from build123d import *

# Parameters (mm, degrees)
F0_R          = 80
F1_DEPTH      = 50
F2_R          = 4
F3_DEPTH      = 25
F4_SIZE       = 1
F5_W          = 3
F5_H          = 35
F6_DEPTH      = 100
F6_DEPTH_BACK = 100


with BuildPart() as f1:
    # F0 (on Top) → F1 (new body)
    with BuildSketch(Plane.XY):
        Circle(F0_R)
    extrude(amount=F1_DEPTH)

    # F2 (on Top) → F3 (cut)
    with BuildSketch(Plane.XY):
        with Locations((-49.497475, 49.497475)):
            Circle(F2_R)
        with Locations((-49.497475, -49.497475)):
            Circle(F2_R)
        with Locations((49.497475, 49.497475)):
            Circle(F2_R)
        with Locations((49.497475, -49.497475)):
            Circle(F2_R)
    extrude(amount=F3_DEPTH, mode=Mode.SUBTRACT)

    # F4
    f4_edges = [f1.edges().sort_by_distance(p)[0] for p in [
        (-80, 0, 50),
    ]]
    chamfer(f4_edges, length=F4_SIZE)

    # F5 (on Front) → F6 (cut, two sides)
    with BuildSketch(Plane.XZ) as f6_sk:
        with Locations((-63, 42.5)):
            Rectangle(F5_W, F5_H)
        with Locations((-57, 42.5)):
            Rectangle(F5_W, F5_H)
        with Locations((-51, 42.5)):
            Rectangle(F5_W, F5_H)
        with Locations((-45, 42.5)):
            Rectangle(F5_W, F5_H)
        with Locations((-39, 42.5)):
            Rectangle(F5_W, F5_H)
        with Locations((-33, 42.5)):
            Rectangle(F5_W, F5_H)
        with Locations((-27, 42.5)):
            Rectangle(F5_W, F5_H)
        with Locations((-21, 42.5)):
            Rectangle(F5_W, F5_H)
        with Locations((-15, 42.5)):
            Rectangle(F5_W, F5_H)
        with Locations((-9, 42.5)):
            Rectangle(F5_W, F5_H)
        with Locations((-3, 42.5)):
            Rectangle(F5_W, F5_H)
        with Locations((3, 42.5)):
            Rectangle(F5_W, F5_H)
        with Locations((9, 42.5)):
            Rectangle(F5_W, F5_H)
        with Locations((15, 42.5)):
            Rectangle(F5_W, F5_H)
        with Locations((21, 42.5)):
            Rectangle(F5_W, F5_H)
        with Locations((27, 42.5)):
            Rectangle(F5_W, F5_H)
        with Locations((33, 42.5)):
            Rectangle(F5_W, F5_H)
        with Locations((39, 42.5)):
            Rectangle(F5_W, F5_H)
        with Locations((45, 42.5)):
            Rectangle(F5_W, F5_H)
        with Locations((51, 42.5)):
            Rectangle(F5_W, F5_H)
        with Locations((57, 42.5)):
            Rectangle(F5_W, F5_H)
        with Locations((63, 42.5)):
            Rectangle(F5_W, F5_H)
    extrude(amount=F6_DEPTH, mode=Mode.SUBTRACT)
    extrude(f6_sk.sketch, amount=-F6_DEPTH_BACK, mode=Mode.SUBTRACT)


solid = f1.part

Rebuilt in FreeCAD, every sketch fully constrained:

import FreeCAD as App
import Part
import Sketcher
from FreeCAD import Vector


def edges_at(feature, points):
    """Names of the edges that pass closest to the given points."""
    edges = feature.Shape.Edges
    near = lambda p: min(range(len(edges)), key=lambda i: edges[i].distToShape(Part.Vertex(*p))[0])
    return sorted({f"Edge{near(p) + 1}" for p in points})

doc = App.newDocument("Part")
body = doc.addObject("PartDesign::Body", "Body")

# Sketch on XY plane
sketch1 = body.newObject("Sketcher::SketchObject", "Sketch")
sketch1.AttachmentSupport = (doc.getObject("XY_Plane"), [""])
sketch1.MapMode = "FlatFace"
sketch1.addGeometry(Part.Circle(Vector(0, 0, 0), Vector(0, 0, 1), 80), False)
sketch1.addConstraint(Sketcher.Constraint("Coincident", 0, 3, -1, 1))
sketch1.addConstraint(Sketcher.Constraint("Diameter", 0, 160.0))
pad1 = body.newObject("PartDesign::Pad", "Pad")
pad1.Profile = sketch1
pad1.Length = 50

# Sketch on XY plane
sketch2 = body.newObject("Sketcher::SketchObject", "Sketch001")
sketch2.AttachmentSupport = (doc.getObject("XY_Plane"), [""])
sketch2.MapMode = "FlatFace"
sketch2.addGeometry(Part.Circle(Vector(-49.5, 49.5, 0), Vector(0, 0, 1), 4), False)
sketch2.addGeometry(Part.Circle(Vector(-49.5, -49.5, 0), Vector(0, 0, 1), 4), False)
sketch2.addGeometry(Part.Circle(Vector(49.5, 49.5, 0), Vector(0, 0, 1), 4), False)
sketch2.addGeometry(Part.Circle(Vector(49.5, -49.5, 0), Vector(0, 0, 1), 4), False)
sketch2.addConstraint(Sketcher.Constraint("Equal", 0, 1))
sketch2.addConstraint(Sketcher.Constraint("Equal", 1, 2))
sketch2.addConstraint(Sketcher.Constraint("Equal", 2, 3))
sketch2.addConstraint(Sketcher.Constraint("Symmetric", 1, 3, 2, 3, -1, 1))
sketch2.addConstraint(Sketcher.Constraint("Symmetric", 0, 3, 3, 3, -1, 1))
sketch2.addConstraint(Sketcher.Constraint("Symmetric", 0, 3, 2, 3, -2))
sketch2.addConstraint(Sketcher.Constraint("Diameter", 0, 8.0))
sketch2.addConstraint(Sketcher.Constraint("DistanceY", 1, 3, 0, 3, 98.99495))
sketch2.addConstraint(Sketcher.Constraint("DistanceX", 0, 3, 2, 3, 98.99495))
pocket1 = body.newObject("PartDesign::Pocket", "Pocket")
pocket1.Profile = sketch2
pocket1.Length = 25
pocket1.Reversed = True
doc.recompute()

chamfer = body.newObject("PartDesign::Chamfer", "Chamfer")
chamfer.Base = (pocket1, edges_at(pocket1, [(-80, 0, 50)]))
chamfer.Size = 1

# Sketch on XZ plane
sketch3 = body.newObject("Sketcher::SketchObject", "Sketch002")
sketch3.AttachmentSupport = (doc.getObject("XZ_Plane"), [""])
sketch3.MapMode = "FlatFace"
sketch3.addGeometry(Part.LineSegment(Vector(-64.5, 60, 0), Vector(-64.5, 25, 0)), False)
sketch3.addGeometry(Part.LineSegment(Vector(-64.5, 25, 0), Vector(-61.5, 25, 0)), False)
sketch3.addGeometry(Part.LineSegment(Vector(-61.5, 25, 0), Vector(-61.5, 60, 0)), False)
sketch3.addGeometry(Part.LineSegment(Vector(-61.5, 60, 0), Vector(-64.5, 60, 0)), False)
sketch3.addGeometry(Part.LineSegment(Vector(-58.5, 60, 0), Vector(-58.5, 25, 0)), False)
sketch3.addGeometry(Part.LineSegment(Vector(-58.5, 25, 0), Vector(-55.5, 25, 0)), False)
sketch3.addGeometry(Part.LineSegment(Vector(-55.5, 25, 0), Vector(-55.5, 60, 0)), False)
sketch3.addGeometry(Part.LineSegment(Vector(-55.5, 60, 0), Vector(-58.5, 60, 0)), False)
sketch3.addGeometry(Part.LineSegment(Vector(-52.5, 60, 0), Vector(-52.5, 25, 0)), False)
sketch3.addGeometry(Part.LineSegment(Vector(-52.5, 25, 0), Vector(-49.5, 25, 0)), False)
sketch3.addGeometry(Part.LineSegment(Vector(-49.5, 25, 0), Vector(-49.5, 60, 0)), False)
sketch3.addGeometry(Part.LineSegment(Vector(-49.5, 60, 0), Vector(-52.5, 60, 0)), False)
sketch3.addGeometry(Part.LineSegment(Vector(-46.5, 60, 0), Vector(-46.5, 25, 0)), False)
sketch3.addGeometry(Part.LineSegment(Vector(-46.5, 25, 0), Vector(-43.5, 25, 0)), False)
sketch3.addGeometry(Part.LineSegment(Vector(-43.5, 25, 0), Vector(-43.5, 60, 0)), False)
sketch3.addGeometry(Part.LineSegment(Vector(-43.5, 60, 0), Vector(-46.5, 60, 0)), False)
sketch3.addGeometry(Part.LineSegment(Vector(-40.5, 60, 0), Vector(-40.5, 25, 0)), False)
sketch3.addGeometry(Part.LineSegment(Vector(-40.5, 25, 0), Vector(-37.5, 25, 0)), False)
sketch3.addGeometry(Part.LineSegment(Vector(-37.5, 25, 0), Vector(-37.5, 60, 0)), False)
sketch3.addGeometry(Part.LineSegment(Vector(-37.5, 60, 0), Vector(-40.5, 60, 0)), False)
sketch3.addGeometry(Part.LineSegment(Vector(-34.5, 60, 0), Vector(-34.5, 25, 0)), False)
sketch3.addGeometry(Part.LineSegment(Vector(-34.5, 25, 0), Vector(-31.5, 25, 0)), False)
sketch3.addGeometry(Part.LineSegment(Vector(-31.5, 25, 0), Vector(-31.5, 60, 0)), False)
sketch3.addGeometry(Part.LineSegment(Vector(-31.5, 60, 0), Vector(-34.5, 60, 0)), False)
sketch3.addGeometry(Part.LineSegment(Vector(-28.5, 60, 0), Vector(-28.5, 25, 0)), False)
sketch3.addGeometry(Part.LineSegment(Vector(-28.5, 25, 0), Vector(-25.5, 25, 0)), False)
sketch3.addGeometry(Part.LineSegment(Vector(-25.5, 25, 0), Vector(-25.5, 60, 0)), False)
sketch3.addGeometry(Part.LineSegment(Vector(-25.5, 60, 0), Vector(-28.5, 60, 0)), False)
sketch3.addGeometry(Part.LineSegment(Vector(-22.5, 60, 0), Vector(-22.5, 25, 0)), False)
sketch3.addGeometry(Part.LineSegment(Vector(-22.5, 25, 0), Vector(-19.5, 25, 0)), False)
sketch3.addGeometry(Part.LineSegment(Vector(-19.5, 25, 0), Vector(-19.5, 60, 0)), False)
sketch3.addGeometry(Part.LineSegment(Vector(-19.5, 60, 0), Vector(-22.5, 60, 0)), False)
sketch3.addGeometry(Part.LineSegment(Vector(-16.5, 60, 0), Vector(-16.5, 25, 0)), False)
sketch3.addGeometry(Part.LineSegment(Vector(-16.5, 25, 0), Vector(-13.5, 25, 0)), False)
sketch3.addGeometry(Part.LineSegment(Vector(-13.5, 25, 0), Vector(-13.5, 60, 0)), False)
sketch3.addGeometry(Part.LineSegment(Vector(-13.5, 60, 0), Vector(-16.5, 60, 0)), False)
sketch3.addGeometry(Part.LineSegment(Vector(-10.5, 60, 0), Vector(-10.5, 25, 0)), False)
sketch3.addGeometry(Part.LineSegment(Vector(-10.5, 25, 0), Vector(-7.5, 25, 0)), False)
sketch3.addGeometry(Part.LineSegment(Vector(-7.5, 25, 0), Vector(-7.5, 60, 0)), False)
sketch3.addGeometry(Part.LineSegment(Vector(-7.5, 60, 0), Vector(-10.5, 60, 0)), False)
sketch3.addGeometry(Part.LineSegment(Vector(-4.5, 60, 0), Vector(-4.5, 25, 0)), False)
sketch3.addGeometry(Part.LineSegment(Vector(-4.5, 25, 0), Vector(-1.5, 25, 0)), False)
sketch3.addGeometry(Part.LineSegment(Vector(-1.5, 25, 0), Vector(-1.5, 60, 0)), False)
sketch3.addGeometry(Part.LineSegment(Vector(-1.5, 60, 0), Vector(-4.5, 60, 0)), False)
sketch3.addGeometry(Part.LineSegment(Vector(1.5, 60, 0), Vector(1.5, 25, 0)), False)
sketch3.addGeometry(Part.LineSegment(Vector(1.5, 25, 0), Vector(4.5, 25, 0)), False)
sketch3.addGeometry(Part.LineSegment(Vector(4.5, 25, 0), Vector(4.5, 60, 0)), False)
sketch3.addGeometry(Part.LineSegment(Vector(4.5, 60, 0), Vector(1.5, 60, 0)), False)
sketch3.addGeometry(Part.LineSegment(Vector(7.5, 60, 0), Vector(7.5, 25, 0)), False)
sketch3.addGeometry(Part.LineSegment(Vector(7.5, 25, 0), Vector(10.5, 25, 0)), False)
sketch3.addGeometry(Part.LineSegment(Vector(10.5, 25, 0), Vector(10.5, 60, 0)), False)
sketch3.addGeometry(Part.LineSegment(Vector(10.5, 60, 0), Vector(7.5, 60, 0)), False)
sketch3.addGeometry(Part.LineSegment(Vector(13.5, 60, 0), Vector(13.5, 25, 0)), False)
sketch3.addGeometry(Part.LineSegment(Vector(13.5, 25, 0), Vector(16.5, 25, 0)), False)
sketch3.addGeometry(Part.LineSegment(Vector(16.5, 25, 0), Vector(16.5, 60, 0)), False)
sketch3.addGeometry(Part.LineSegment(Vector(16.5, 60, 0), Vector(13.5, 60, 0)), False)
sketch3.addGeometry(Part.LineSegment(Vector(19.5, 60, 0), Vector(19.5, 25, 0)), False)
sketch3.addGeometry(Part.LineSegment(Vector(19.5, 25, 0), Vector(22.5, 25, 0)), False)
sketch3.addGeometry(Part.LineSegment(Vector(22.5, 25, 0), Vector(22.5, 60, 0)), False)
sketch3.addGeometry(Part.LineSegment(Vector(22.5, 60, 0), Vector(19.5, 60, 0)), False)
sketch3.addGeometry(Part.LineSegment(Vector(25.5, 60, 0), Vector(25.5, 25, 0)), False)
sketch3.addGeometry(Part.LineSegment(Vector(25.5, 25, 0), Vector(28.5, 25, 0)), False)
sketch3.addGeometry(Part.LineSegment(Vector(28.5, 25, 0), Vector(28.5, 60, 0)), False)
sketch3.addGeometry(Part.LineSegment(Vector(28.5, 60, 0), Vector(25.5, 60, 0)), False)
sketch3.addGeometry(Part.LineSegment(Vector(31.5, 60, 0), Vector(31.5, 25, 0)), False)
sketch3.addGeometry(Part.LineSegment(Vector(31.5, 25, 0), Vector(34.5, 25, 0)), False)
sketch3.addGeometry(Part.LineSegment(Vector(34.5, 25, 0), Vector(34.5, 60, 0)), False)
sketch3.addGeometry(Part.LineSegment(Vector(34.5, 60, 0), Vector(31.5, 60, 0)), False)
sketch3.addGeometry(Part.LineSegment(Vector(37.5, 60, 0), Vector(37.5, 25, 0)), False)
sketch3.addGeometry(Part.LineSegment(Vector(37.5, 25, 0), Vector(40.5, 25, 0)), False)
sketch3.addGeometry(Part.LineSegment(Vector(40.5, 25, 0), Vector(40.5, 60, 0)), False)
sketch3.addGeometry(Part.LineSegment(Vector(40.5, 60, 0), Vector(37.5, 60, 0)), False)
sketch3.addGeometry(Part.LineSegment(Vector(43.5, 60, 0), Vector(43.5, 25, 0)), False)
sketch3.addGeometry(Part.LineSegment(Vector(43.5, 25, 0), Vector(46.5, 25, 0)), False)
sketch3.addGeometry(Part.LineSegment(Vector(46.5, 25, 0), Vector(46.5, 60, 0)), False)
sketch3.addGeometry(Part.LineSegment(Vector(46.5, 60, 0), Vector(43.5, 60, 0)), False)
sketch3.addGeometry(Part.LineSegment(Vector(49.5, 60, 0), Vector(49.5, 25, 0)), False)
sketch3.addGeometry(Part.LineSegment(Vector(49.5, 25, 0), Vector(52.5, 25, 0)), False)
sketch3.addGeometry(Part.LineSegment(Vector(52.5, 25, 0), Vector(52.5, 60, 0)), False)
sketch3.addGeometry(Part.LineSegment(Vector(52.5, 60, 0), Vector(49.5, 60, 0)), False)
sketch3.addGeometry(Part.LineSegment(Vector(55.5, 60, 0), Vector(55.5, 25, 0)), False)
sketch3.addGeometry(Part.LineSegment(Vector(55.5, 25, 0), Vector(58.5, 25, 0)), False)
sketch3.addGeometry(Part.LineSegment(Vector(58.5, 25, 0), Vector(58.5, 60, 0)), False)
sketch3.addGeometry(Part.LineSegment(Vector(58.5, 60, 0), Vector(55.5, 60, 0)), False)
sketch3.addGeometry(Part.LineSegment(Vector(61.5, 60, 0), Vector(61.5, 25, 0)), False)
sketch3.addGeometry(Part.LineSegment(Vector(61.5, 25, 0), Vector(64.5, 25, 0)), False)
sketch3.addGeometry(Part.LineSegment(Vector(64.5, 25, 0), Vector(64.5, 60, 0)), False)
sketch3.addGeometry(Part.LineSegment(Vector(64.5, 60, 0), Vector(61.5, 60, 0)), False)
sketch3.addConstraint(Sketcher.Constraint("Coincident", 0, 2, 1, 1))
sketch3.addConstraint(Sketcher.Constraint("Coincident", 1, 2, 2, 1))
sketch3.addConstraint(Sketcher.Constraint("Coincident", 2, 2, 3, 1))
sketch3.addConstraint(Sketcher.Constraint("Coincident", 3, 2, 0, 1))
sketch3.addConstraint(Sketcher.Constraint("Coincident", 4, 2, 5, 1))
sketch3.addConstraint(Sketcher.Constraint("Coincident", 5, 2, 6, 1))
sketch3.addConstraint(Sketcher.Constraint("Coincident", 6, 2, 7, 1))
sketch3.addConstraint(Sketcher.Constraint("Coincident", 7, 2, 4, 1))
sketch3.addConstraint(Sketcher.Constraint("Coincident", 8, 2, 9, 1))
sketch3.addConstraint(Sketcher.Constraint("Coincident", 9, 2, 10, 1))
sketch3.addConstraint(Sketcher.Constraint("Coincident", 10, 2, 11, 1))
sketch3.addConstraint(Sketcher.Constraint("Coincident", 11, 2, 8, 1))
sketch3.addConstraint(Sketcher.Constraint("Coincident", 12, 2, 13, 1))
sketch3.addConstraint(Sketcher.Constraint("Coincident", 13, 2, 14, 1))
sketch3.addConstraint(Sketcher.Constraint("Coincident", 14, 2, 15, 1))
sketch3.addConstraint(Sketcher.Constraint("Coincident", 15, 2, 12, 1))
sketch3.addConstraint(Sketcher.Constraint("Coincident", 16, 2, 17, 1))
sketch3.addConstraint(Sketcher.Constraint("Coincident", 17, 2, 18, 1))
sketch3.addConstraint(Sketcher.Constraint("Coincident", 18, 2, 19, 1))
sketch3.addConstraint(Sketcher.Constraint("Coincident", 19, 2, 16, 1))
sketch3.addConstraint(Sketcher.Constraint("Coincident", 20, 2, 21, 1))
sketch3.addConstraint(Sketcher.Constraint("Coincident", 21, 2, 22, 1))
sketch3.addConstraint(Sketcher.Constraint("Coincident", 22, 2, 23, 1))
sketch3.addConstraint(Sketcher.Constraint("Coincident", 23, 2, 20, 1))
sketch3.addConstraint(Sketcher.Constraint("Coincident", 24, 2, 25, 1))
sketch3.addConstraint(Sketcher.Constraint("Coincident", 25, 2, 26, 1))
sketch3.addConstraint(Sketcher.Constraint("Coincident", 26, 2, 27, 1))
sketch3.addConstraint(Sketcher.Constraint("Coincident", 27, 2, 24, 1))
sketch3.addConstraint(Sketcher.Constraint("Coincident", 28, 2, 29, 1))
sketch3.addConstraint(Sketcher.Constraint("Coincident", 29, 2, 30, 1))
sketch3.addConstraint(Sketcher.Constraint("Coincident", 30, 2, 31, 1))
sketch3.addConstraint(Sketcher.Constraint("Coincident", 31, 2, 28, 1))
sketch3.addConstraint(Sketcher.Constraint("Coincident", 32, 2, 33, 1))
sketch3.addConstraint(Sketcher.Constraint("Coincident", 33, 2, 34, 1))
sketch3.addConstraint(Sketcher.Constraint("Coincident", 34, 2, 35, 1))
sketch3.addConstraint(Sketcher.Constraint("Coincident", 35, 2, 32, 1))
sketch3.addConstraint(Sketcher.Constraint("Coincident", 36, 2, 37, 1))
sketch3.addConstraint(Sketcher.Constraint("Coincident", 37, 2, 38, 1))
sketch3.addConstraint(Sketcher.Constraint("Coincident", 38, 2, 39, 1))
sketch3.addConstraint(Sketcher.Constraint("Coincident", 39, 2, 36, 1))
sketch3.addConstraint(Sketcher.Constraint("Coincident", 40, 2, 41, 1))
sketch3.addConstraint(Sketcher.Constraint("Coincident", 41, 2, 42, 1))
sketch3.addConstraint(Sketcher.Constraint("Coincident", 42, 2, 43, 1))
sketch3.addConstraint(Sketcher.Constraint("Coincident", 43, 2, 40, 1))
sketch3.addConstraint(Sketcher.Constraint("Coincident", 44, 2, 45, 1))
sketch3.addConstraint(Sketcher.Constraint("Coincident", 45, 2, 46, 1))
sketch3.addConstraint(Sketcher.Constraint("Coincident", 46, 2, 47, 1))
sketch3.addConstraint(Sketcher.Constraint("Coincident", 47, 2, 44, 1))
sketch3.addConstraint(Sketcher.Constraint("Coincident", 48, 2, 49, 1))
sketch3.addConstraint(Sketcher.Constraint("Coincident", 49, 2, 50, 1))
sketch3.addConstraint(Sketcher.Constraint("Coincident", 50, 2, 51, 1))
sketch3.addConstraint(Sketcher.Constraint("Coincident", 51, 2, 48, 1))
sketch3.addConstraint(Sketcher.Constraint("Coincident", 52, 2, 53, 1))
sketch3.addConstraint(Sketcher.Constraint("Coincident", 53, 2, 54, 1))
sketch3.addConstraint(Sketcher.Constraint("Coincident", 54, 2, 55, 1))
sketch3.addConstraint(Sketcher.Constraint("Coincident", 55, 2, 52, 1))
sketch3.addConstraint(Sketcher.Constraint("Coincident", 56, 2, 57, 1))
sketch3.addConstraint(Sketcher.Constraint("Coincident", 57, 2, 58, 1))
sketch3.addConstraint(Sketcher.Constraint("Coincident", 58, 2, 59, 1))
sketch3.addConstraint(Sketcher.Constraint("Coincident", 59, 2, 56, 1))
sketch3.addConstraint(Sketcher.Constraint("Coincident", 60, 2, 61, 1))
sketch3.addConstraint(Sketcher.Constraint("Coincident", 61, 2, 62, 1))
sketch3.addConstraint(Sketcher.Constraint("Coincident", 62, 2, 63, 1))
sketch3.addConstraint(Sketcher.Constraint("Coincident", 63, 2, 60, 1))
sketch3.addConstraint(Sketcher.Constraint("Coincident", 64, 2, 65, 1))
sketch3.addConstraint(Sketcher.Constraint("Coincident", 65, 2, 66, 1))
sketch3.addConstraint(Sketcher.Constraint("Coincident", 66, 2, 67, 1))
sketch3.addConstraint(Sketcher.Constraint("Coincident", 67, 2, 64, 1))
sketch3.addConstraint(Sketcher.Constraint("Coincident", 68, 2, 69, 1))
sketch3.addConstraint(Sketcher.Constraint("Coincident", 69, 2, 70, 1))
sketch3.addConstraint(Sketcher.Constraint("Coincident", 70, 2, 71, 1))
sketch3.addConstraint(Sketcher.Constraint("Coincident", 71, 2, 68, 1))
sketch3.addConstraint(Sketcher.Constraint("Coincident", 72, 2, 73, 1))
sketch3.addConstraint(Sketcher.Constraint("Coincident", 73, 2, 74, 1))
sketch3.addConstraint(Sketcher.Constraint("Coincident", 74, 2, 75, 1))
sketch3.addConstraint(Sketcher.Constraint("Coincident", 75, 2, 72, 1))
sketch3.addConstraint(Sketcher.Constraint("Coincident", 76, 2, 77, 1))
sketch3.addConstraint(Sketcher.Constraint("Coincident", 77, 2, 78, 1))
sketch3.addConstraint(Sketcher.Constraint("Coincident", 78, 2, 79, 1))
sketch3.addConstraint(Sketcher.Constraint("Coincident", 79, 2, 76, 1))
sketch3.addConstraint(Sketcher.Constraint("Coincident", 80, 2, 81, 1))
sketch3.addConstraint(Sketcher.Constraint("Coincident", 81, 2, 82, 1))
sketch3.addConstraint(Sketcher.Constraint("Coincident", 82, 2, 83, 1))
sketch3.addConstraint(Sketcher.Constraint("Coincident", 83, 2, 80, 1))
sketch3.addConstraint(Sketcher.Constraint("Coincident", 84, 2, 85, 1))
sketch3.addConstraint(Sketcher.Constraint("Coincident", 85, 2, 86, 1))
sketch3.addConstraint(Sketcher.Constraint("Coincident", 86, 2, 87, 1))
sketch3.addConstraint(Sketcher.Constraint("Coincident", 87, 2, 84, 1))
sketch3.addConstraint(Sketcher.Constraint("Vertical", 0))
sketch3.addConstraint(Sketcher.Constraint("Horizontal", 1))
sketch3.addConstraint(Sketcher.Constraint("Vertical", 2))
sketch3.addConstraint(Sketcher.Constraint("Horizontal", 3))
sketch3.addConstraint(Sketcher.Constraint("Vertical", 4))
sketch3.addConstraint(Sketcher.Constraint("Horizontal", 5))
sketch3.addConstraint(Sketcher.Constraint("Vertical", 6))
sketch3.addConstraint(Sketcher.Constraint("Horizontal", 7))
sketch3.addConstraint(Sketcher.Constraint("Vertical", 8))
sketch3.addConstraint(Sketcher.Constraint("Horizontal", 9))
sketch3.addConstraint(Sketcher.Constraint("Vertical", 10))
sketch3.addConstraint(Sketcher.Constraint("Horizontal", 11))
sketch3.addConstraint(Sketcher.Constraint("Vertical", 12))
sketch3.addConstraint(Sketcher.Constraint("Horizontal", 13))
sketch3.addConstraint(Sketcher.Constraint("Vertical", 14))
sketch3.addConstraint(Sketcher.Constraint("Horizontal", 15))
sketch3.addConstraint(Sketcher.Constraint("Vertical", 16))
sketch3.addConstraint(Sketcher.Constraint("Horizontal", 17))
sketch3.addConstraint(Sketcher.Constraint("Vertical", 18))
sketch3.addConstraint(Sketcher.Constraint("Horizontal", 19))
sketch3.addConstraint(Sketcher.Constraint("Vertical", 20))
sketch3.addConstraint(Sketcher.Constraint("Horizontal", 21))
sketch3.addConstraint(Sketcher.Constraint("Vertical", 22))
sketch3.addConstraint(Sketcher.Constraint("Horizontal", 23))
sketch3.addConstraint(Sketcher.Constraint("Vertical", 24))
sketch3.addConstraint(Sketcher.Constraint("Horizontal", 25))
sketch3.addConstraint(Sketcher.Constraint("Vertical", 26))
sketch3.addConstraint(Sketcher.Constraint("Horizontal", 27))
sketch3.addConstraint(Sketcher.Constraint("Vertical", 28))
sketch3.addConstraint(Sketcher.Constraint("Horizontal", 29))
sketch3.addConstraint(Sketcher.Constraint("Vertical", 30))
sketch3.addConstraint(Sketcher.Constraint("Horizontal", 31))
sketch3.addConstraint(Sketcher.Constraint("Vertical", 32))
sketch3.addConstraint(Sketcher.Constraint("Horizontal", 33))
sketch3.addConstraint(Sketcher.Constraint("Vertical", 34))
sketch3.addConstraint(Sketcher.Constraint("Horizontal", 35))
sketch3.addConstraint(Sketcher.Constraint("Vertical", 36))
sketch3.addConstraint(Sketcher.Constraint("Horizontal", 37))
sketch3.addConstraint(Sketcher.Constraint("Vertical", 38))
sketch3.addConstraint(Sketcher.Constraint("Horizontal", 39))
sketch3.addConstraint(Sketcher.Constraint("Vertical", 40))
sketch3.addConstraint(Sketcher.Constraint("Horizontal", 41))
sketch3.addConstraint(Sketcher.Constraint("Vertical", 42))
sketch3.addConstraint(Sketcher.Constraint("Horizontal", 43))
sketch3.addConstraint(Sketcher.Constraint("Vertical", 44))
sketch3.addConstraint(Sketcher.Constraint("Horizontal", 45))
sketch3.addConstraint(Sketcher.Constraint("Vertical", 46))
sketch3.addConstraint(Sketcher.Constraint("Horizontal", 47))
sketch3.addConstraint(Sketcher.Constraint("Vertical", 48))
sketch3.addConstraint(Sketcher.Constraint("Horizontal", 49))
sketch3.addConstraint(Sketcher.Constraint("Vertical", 50))
sketch3.addConstraint(Sketcher.Constraint("Horizontal", 51))
sketch3.addConstraint(Sketcher.Constraint("Vertical", 52))
sketch3.addConstraint(Sketcher.Constraint("Horizontal", 53))
sketch3.addConstraint(Sketcher.Constraint("Vertical", 54))
sketch3.addConstraint(Sketcher.Constraint("Horizontal", 55))
sketch3.addConstraint(Sketcher.Constraint("Vertical", 56))
sketch3.addConstraint(Sketcher.Constraint("Horizontal", 57))
sketch3.addConstraint(Sketcher.Constraint("Vertical", 58))
sketch3.addConstraint(Sketcher.Constraint("Horizontal", 59))
sketch3.addConstraint(Sketcher.Constraint("Vertical", 60))
sketch3.addConstraint(Sketcher.Constraint("Horizontal", 61))
sketch3.addConstraint(Sketcher.Constraint("Vertical", 62))
sketch3.addConstraint(Sketcher.Constraint("Horizontal", 63))
sketch3.addConstraint(Sketcher.Constraint("Vertical", 64))
sketch3.addConstraint(Sketcher.Constraint("Horizontal", 65))
sketch3.addConstraint(Sketcher.Constraint("Vertical", 66))
sketch3.addConstraint(Sketcher.Constraint("Horizontal", 67))
sketch3.addConstraint(Sketcher.Constraint("Vertical", 68))
sketch3.addConstraint(Sketcher.Constraint("Horizontal", 69))
sketch3.addConstraint(Sketcher.Constraint("Vertical", 70))
sketch3.addConstraint(Sketcher.Constraint("Horizontal", 71))
sketch3.addConstraint(Sketcher.Constraint("Vertical", 72))
sketch3.addConstraint(Sketcher.Constraint("Horizontal", 73))
sketch3.addConstraint(Sketcher.Constraint("Vertical", 74))
sketch3.addConstraint(Sketcher.Constraint("Horizontal", 75))
sketch3.addConstraint(Sketcher.Constraint("Vertical", 76))
sketch3.addConstraint(Sketcher.Constraint("Horizontal", 77))
sketch3.addConstraint(Sketcher.Constraint("Vertical", 78))
sketch3.addConstraint(Sketcher.Constraint("Horizontal", 79))
sketch3.addConstraint(Sketcher.Constraint("Vertical", 80))
sketch3.addConstraint(Sketcher.Constraint("Horizontal", 81))
sketch3.addConstraint(Sketcher.Constraint("Vertical", 82))
sketch3.addConstraint(Sketcher.Constraint("Horizontal", 83))
sketch3.addConstraint(Sketcher.Constraint("Vertical", 84))
sketch3.addConstraint(Sketcher.Constraint("Horizontal", 85))
sketch3.addConstraint(Sketcher.Constraint("Vertical", 86))
sketch3.addConstraint(Sketcher.Constraint("Horizontal", 87))
sketch3.addConstraint(Sketcher.Constraint("Symmetric", 41, 2, 44, 2, -2))
sketch3.addConstraint(Sketcher.Constraint("Symmetric", 43, 2, 46, 2, -2))
sketch3.addConstraint(Sketcher.Constraint("Symmetric", 37, 2, 48, 2, -2))
sketch3.addConstraint(Sketcher.Constraint("Symmetric", 39, 2, 50, 2, -2))
sketch3.addConstraint(Sketcher.Constraint("Symmetric", 33, 2, 52, 2, -2))
sketch3.addConstraint(Sketcher.Constraint("Symmetric", 35, 2, 54, 2, -2))
sketch3.addConstraint(Sketcher.Constraint("Symmetric", 29, 2, 56, 2, -2))
sketch3.addConstraint(Sketcher.Constraint("Symmetric", 31, 2, 58, 2, -2))
sketch3.addConstraint(Sketcher.Constraint("Symmetric", 25, 2, 60, 2, -2))
sketch3.addConstraint(Sketcher.Constraint("Symmetric", 27, 2, 62, 2, -2))
sketch3.addConstraint(Sketcher.Constraint("Symmetric", 21, 2, 64, 2, -2))
sketch3.addConstraint(Sketcher.Constraint("Symmetric", 23, 2, 66, 2, -2))
sketch3.addConstraint(Sketcher.Constraint("Symmetric", 17, 2, 68, 2, -2))
sketch3.addConstraint(Sketcher.Constraint("Symmetric", 19, 2, 70, 2, -2))
sketch3.addConstraint(Sketcher.Constraint("Symmetric", 13, 2, 72, 2, -2))
sketch3.addConstraint(Sketcher.Constraint("Symmetric", 15, 2, 74, 2, -2))
sketch3.addConstraint(Sketcher.Constraint("Symmetric", 9, 2, 76, 2, -2))
sketch3.addConstraint(Sketcher.Constraint("Symmetric", 11, 2, 78, 2, -2))
sketch3.addConstraint(Sketcher.Constraint("Symmetric", 5, 2, 80, 2, -2))
sketch3.addConstraint(Sketcher.Constraint("Symmetric", 7, 2, 82, 2, -2))
sketch3.addConstraint(Sketcher.Constraint("Symmetric", 1, 2, 84, 2, -2))
sketch3.addConstraint(Sketcher.Constraint("Symmetric", 3, 2, 86, 2, -2))
sketch3.addConstraint(Sketcher.Constraint("Horizontal", 1, 2, 4, 2))
sketch3.addConstraint(Sketcher.Constraint("Horizontal", 3, 2, 6, 2))
sketch3.addConstraint(Sketcher.Constraint("Horizontal", 5, 2, 8, 2))
sketch3.addConstraint(Sketcher.Constraint("Horizontal", 7, 2, 10, 2))
sketch3.addConstraint(Sketcher.Constraint("Horizontal", 9, 2, 12, 2))
sketch3.addConstraint(Sketcher.Constraint("Horizontal", 11, 2, 14, 2))
sketch3.addConstraint(Sketcher.Constraint("Horizontal", 13, 2, 16, 2))
sketch3.addConstraint(Sketcher.Constraint("Horizontal", 15, 2, 18, 2))
sketch3.addConstraint(Sketcher.Constraint("Horizontal", 17, 2, 20, 2))
sketch3.addConstraint(Sketcher.Constraint("Horizontal", 19, 2, 22, 2))
sketch3.addConstraint(Sketcher.Constraint("Horizontal", 21, 2, 24, 2))
sketch3.addConstraint(Sketcher.Constraint("Horizontal", 23, 2, 26, 2))
sketch3.addConstraint(Sketcher.Constraint("Horizontal", 25, 2, 28, 2))
sketch3.addConstraint(Sketcher.Constraint("Horizontal", 27, 2, 30, 2))
sketch3.addConstraint(Sketcher.Constraint("Horizontal", 29, 2, 32, 2))
sketch3.addConstraint(Sketcher.Constraint("Horizontal", 31, 2, 34, 2))
sketch3.addConstraint(Sketcher.Constraint("Horizontal", 33, 2, 36, 2))
sketch3.addConstraint(Sketcher.Constraint("Horizontal", 35, 2, 38, 2))
sketch3.addConstraint(Sketcher.Constraint("Horizontal", 37, 2, 40, 2))
sketch3.addConstraint(Sketcher.Constraint("Horizontal", 39, 2, 42, 2))
sketch3.addConstraint(Sketcher.Constraint("Equal", 3, 5))
sketch3.addConstraint(Sketcher.Constraint("Equal", 7, 9))
sketch3.addConstraint(Sketcher.Constraint("Equal", 11, 13))
sketch3.addConstraint(Sketcher.Constraint("Equal", 15, 17))
sketch3.addConstraint(Sketcher.Constraint("Equal", 19, 21))
sketch3.addConstraint(Sketcher.Constraint("Equal", 23, 25))
sketch3.addConstraint(Sketcher.Constraint("Equal", 27, 29))
sketch3.addConstraint(Sketcher.Constraint("Equal", 31, 33))
sketch3.addConstraint(Sketcher.Constraint("Equal", 35, 37))
sketch3.addConstraint(Sketcher.Constraint("Equal", 39, 41))
sketch3.addConstraint(Sketcher.Constraint("DistanceX", 1, 1, 1, 2, 3.0))
sketch3.addConstraint(Sketcher.Constraint("DistanceY", 0, 2, 0, 1, 35.0))
sketch3.addConstraint(Sketcher.Constraint("DistanceY", -1, 1, 0, 2, 25.0))
sketch3.addConstraint(Sketcher.Constraint("DistanceX", 0, 2, -1, 1, 64.5))
sketch3.addConstraint(Sketcher.Constraint("DistanceX", 4, 2, -1, 1, 58.5))
sketch3.addConstraint(Sketcher.Constraint("DistanceX", 8, 2, -1, 1, 52.5))
sketch3.addConstraint(Sketcher.Constraint("DistanceX", 12, 2, -1, 1, 46.5))
sketch3.addConstraint(Sketcher.Constraint("DistanceX", 16, 2, -1, 1, 40.5))
sketch3.addConstraint(Sketcher.Constraint("DistanceX", 20, 2, -1, 1, 34.5))
sketch3.addConstraint(Sketcher.Constraint("DistanceX", 24, 2, -1, 1, 28.5))
sketch3.addConstraint(Sketcher.Constraint("DistanceX", 28, 2, -1, 1, 22.5))
sketch3.addConstraint(Sketcher.Constraint("DistanceX", 32, 2, -1, 1, 16.5))
sketch3.addConstraint(Sketcher.Constraint("DistanceX", 36, 2, -1, 1, 10.5))
sketch3.addConstraint(Sketcher.Constraint("DistanceX", 40, 2, -1, 1, 4.5))
pocket2 = body.newObject("PartDesign::Pocket", "Pocket001")
pocket2.Profile = sketch3
pocket2.Type = "ThroughAll"
pocket2.Midplane = True

doc.recompute()
